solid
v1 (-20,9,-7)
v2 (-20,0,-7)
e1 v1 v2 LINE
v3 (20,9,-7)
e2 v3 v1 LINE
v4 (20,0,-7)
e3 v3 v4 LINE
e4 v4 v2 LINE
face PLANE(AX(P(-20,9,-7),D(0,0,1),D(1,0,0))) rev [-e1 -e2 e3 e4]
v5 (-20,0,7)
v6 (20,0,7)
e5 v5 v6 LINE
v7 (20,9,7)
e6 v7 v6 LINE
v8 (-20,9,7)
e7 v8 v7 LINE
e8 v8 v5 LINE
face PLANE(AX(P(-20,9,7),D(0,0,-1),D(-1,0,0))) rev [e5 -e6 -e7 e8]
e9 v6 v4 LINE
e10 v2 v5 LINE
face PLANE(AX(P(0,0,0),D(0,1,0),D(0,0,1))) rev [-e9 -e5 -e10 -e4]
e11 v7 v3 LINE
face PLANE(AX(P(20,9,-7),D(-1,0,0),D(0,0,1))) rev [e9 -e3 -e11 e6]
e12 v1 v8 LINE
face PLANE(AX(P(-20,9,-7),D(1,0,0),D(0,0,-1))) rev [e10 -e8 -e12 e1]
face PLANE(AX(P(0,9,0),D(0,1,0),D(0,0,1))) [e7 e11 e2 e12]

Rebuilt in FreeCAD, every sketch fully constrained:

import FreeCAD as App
import Part
import Sketcher
from FreeCAD import Vector
Q = App.Units.Quantity

doc = App.newDocument("Part")
body = doc.addObject("PartDesign::Body", "Body")

# Sketch on XZ plane
sketch1 = body.newObject("Sketcher::SketchObject", "Sketch")
sketch1.AttachmentSupport = (doc.getObject("XZ_Plane"), [""])
sketch1.MapMode = "FlatFace"
sketch1.addGeometry(Part.LineSegment(Vector(-20, -7, 0), Vector(-20, 7, 0)), False)
sketch1.addGeometry(Part.LineSegment(Vector(-20, 7, 0), Vector(20, 7, 0)), False)
sketch1.addGeometry(Part.LineSegment(Vector(20, 7, 0), Vector(20, -7, 0)), False)
sketch1.addGeometry(Part.LineSegment(Vector(20, -7, 0), Vector(-20, -7, 0)), False)
sketch1.addConstraint(Sketcher.Constraint("Coincident", 0, 2, 1, 1))
sketch1.addConstraint(Sketcher.Constraint("Coincident", 1, 2, 2, 1))
sketch1.addConstraint(Sketcher.Constraint("Coincident", 2, 2, 3, 1))
sketch1.addConstraint(Sketcher.Constraint("Coincident", 3, 2, 0, 1))
sketch1.addConstraint(Sketcher.Constraint("Vertical", 0))
sketch1.addConstraint(Sketcher.Constraint("Horizontal", 1))
sketch1.addConstraint(Sketcher.Constraint("Vertical", 2))
sketch1.addConstraint(Sketcher.Constraint("Horizontal", 3))
sketch1.addConstraint(Sketcher.Constraint("Symmetric", 0, 2, 2, 2, -1, 1))
sketch1.addConstraint(Sketcher.Constraint("DistanceX", 1, 1, 1, 2, Q("40 mm")))
sketch1.addConstraint(Sketcher.Constraint("DistanceY", 0, 1, 0, 2, Q("14 mm")))
pad1 = body.newObject("PartDesign::Pad", "Pad")
pad1.Profile = sketch1
pad1.Length = 9
pad1.Reversed = True

doc.recompute()
